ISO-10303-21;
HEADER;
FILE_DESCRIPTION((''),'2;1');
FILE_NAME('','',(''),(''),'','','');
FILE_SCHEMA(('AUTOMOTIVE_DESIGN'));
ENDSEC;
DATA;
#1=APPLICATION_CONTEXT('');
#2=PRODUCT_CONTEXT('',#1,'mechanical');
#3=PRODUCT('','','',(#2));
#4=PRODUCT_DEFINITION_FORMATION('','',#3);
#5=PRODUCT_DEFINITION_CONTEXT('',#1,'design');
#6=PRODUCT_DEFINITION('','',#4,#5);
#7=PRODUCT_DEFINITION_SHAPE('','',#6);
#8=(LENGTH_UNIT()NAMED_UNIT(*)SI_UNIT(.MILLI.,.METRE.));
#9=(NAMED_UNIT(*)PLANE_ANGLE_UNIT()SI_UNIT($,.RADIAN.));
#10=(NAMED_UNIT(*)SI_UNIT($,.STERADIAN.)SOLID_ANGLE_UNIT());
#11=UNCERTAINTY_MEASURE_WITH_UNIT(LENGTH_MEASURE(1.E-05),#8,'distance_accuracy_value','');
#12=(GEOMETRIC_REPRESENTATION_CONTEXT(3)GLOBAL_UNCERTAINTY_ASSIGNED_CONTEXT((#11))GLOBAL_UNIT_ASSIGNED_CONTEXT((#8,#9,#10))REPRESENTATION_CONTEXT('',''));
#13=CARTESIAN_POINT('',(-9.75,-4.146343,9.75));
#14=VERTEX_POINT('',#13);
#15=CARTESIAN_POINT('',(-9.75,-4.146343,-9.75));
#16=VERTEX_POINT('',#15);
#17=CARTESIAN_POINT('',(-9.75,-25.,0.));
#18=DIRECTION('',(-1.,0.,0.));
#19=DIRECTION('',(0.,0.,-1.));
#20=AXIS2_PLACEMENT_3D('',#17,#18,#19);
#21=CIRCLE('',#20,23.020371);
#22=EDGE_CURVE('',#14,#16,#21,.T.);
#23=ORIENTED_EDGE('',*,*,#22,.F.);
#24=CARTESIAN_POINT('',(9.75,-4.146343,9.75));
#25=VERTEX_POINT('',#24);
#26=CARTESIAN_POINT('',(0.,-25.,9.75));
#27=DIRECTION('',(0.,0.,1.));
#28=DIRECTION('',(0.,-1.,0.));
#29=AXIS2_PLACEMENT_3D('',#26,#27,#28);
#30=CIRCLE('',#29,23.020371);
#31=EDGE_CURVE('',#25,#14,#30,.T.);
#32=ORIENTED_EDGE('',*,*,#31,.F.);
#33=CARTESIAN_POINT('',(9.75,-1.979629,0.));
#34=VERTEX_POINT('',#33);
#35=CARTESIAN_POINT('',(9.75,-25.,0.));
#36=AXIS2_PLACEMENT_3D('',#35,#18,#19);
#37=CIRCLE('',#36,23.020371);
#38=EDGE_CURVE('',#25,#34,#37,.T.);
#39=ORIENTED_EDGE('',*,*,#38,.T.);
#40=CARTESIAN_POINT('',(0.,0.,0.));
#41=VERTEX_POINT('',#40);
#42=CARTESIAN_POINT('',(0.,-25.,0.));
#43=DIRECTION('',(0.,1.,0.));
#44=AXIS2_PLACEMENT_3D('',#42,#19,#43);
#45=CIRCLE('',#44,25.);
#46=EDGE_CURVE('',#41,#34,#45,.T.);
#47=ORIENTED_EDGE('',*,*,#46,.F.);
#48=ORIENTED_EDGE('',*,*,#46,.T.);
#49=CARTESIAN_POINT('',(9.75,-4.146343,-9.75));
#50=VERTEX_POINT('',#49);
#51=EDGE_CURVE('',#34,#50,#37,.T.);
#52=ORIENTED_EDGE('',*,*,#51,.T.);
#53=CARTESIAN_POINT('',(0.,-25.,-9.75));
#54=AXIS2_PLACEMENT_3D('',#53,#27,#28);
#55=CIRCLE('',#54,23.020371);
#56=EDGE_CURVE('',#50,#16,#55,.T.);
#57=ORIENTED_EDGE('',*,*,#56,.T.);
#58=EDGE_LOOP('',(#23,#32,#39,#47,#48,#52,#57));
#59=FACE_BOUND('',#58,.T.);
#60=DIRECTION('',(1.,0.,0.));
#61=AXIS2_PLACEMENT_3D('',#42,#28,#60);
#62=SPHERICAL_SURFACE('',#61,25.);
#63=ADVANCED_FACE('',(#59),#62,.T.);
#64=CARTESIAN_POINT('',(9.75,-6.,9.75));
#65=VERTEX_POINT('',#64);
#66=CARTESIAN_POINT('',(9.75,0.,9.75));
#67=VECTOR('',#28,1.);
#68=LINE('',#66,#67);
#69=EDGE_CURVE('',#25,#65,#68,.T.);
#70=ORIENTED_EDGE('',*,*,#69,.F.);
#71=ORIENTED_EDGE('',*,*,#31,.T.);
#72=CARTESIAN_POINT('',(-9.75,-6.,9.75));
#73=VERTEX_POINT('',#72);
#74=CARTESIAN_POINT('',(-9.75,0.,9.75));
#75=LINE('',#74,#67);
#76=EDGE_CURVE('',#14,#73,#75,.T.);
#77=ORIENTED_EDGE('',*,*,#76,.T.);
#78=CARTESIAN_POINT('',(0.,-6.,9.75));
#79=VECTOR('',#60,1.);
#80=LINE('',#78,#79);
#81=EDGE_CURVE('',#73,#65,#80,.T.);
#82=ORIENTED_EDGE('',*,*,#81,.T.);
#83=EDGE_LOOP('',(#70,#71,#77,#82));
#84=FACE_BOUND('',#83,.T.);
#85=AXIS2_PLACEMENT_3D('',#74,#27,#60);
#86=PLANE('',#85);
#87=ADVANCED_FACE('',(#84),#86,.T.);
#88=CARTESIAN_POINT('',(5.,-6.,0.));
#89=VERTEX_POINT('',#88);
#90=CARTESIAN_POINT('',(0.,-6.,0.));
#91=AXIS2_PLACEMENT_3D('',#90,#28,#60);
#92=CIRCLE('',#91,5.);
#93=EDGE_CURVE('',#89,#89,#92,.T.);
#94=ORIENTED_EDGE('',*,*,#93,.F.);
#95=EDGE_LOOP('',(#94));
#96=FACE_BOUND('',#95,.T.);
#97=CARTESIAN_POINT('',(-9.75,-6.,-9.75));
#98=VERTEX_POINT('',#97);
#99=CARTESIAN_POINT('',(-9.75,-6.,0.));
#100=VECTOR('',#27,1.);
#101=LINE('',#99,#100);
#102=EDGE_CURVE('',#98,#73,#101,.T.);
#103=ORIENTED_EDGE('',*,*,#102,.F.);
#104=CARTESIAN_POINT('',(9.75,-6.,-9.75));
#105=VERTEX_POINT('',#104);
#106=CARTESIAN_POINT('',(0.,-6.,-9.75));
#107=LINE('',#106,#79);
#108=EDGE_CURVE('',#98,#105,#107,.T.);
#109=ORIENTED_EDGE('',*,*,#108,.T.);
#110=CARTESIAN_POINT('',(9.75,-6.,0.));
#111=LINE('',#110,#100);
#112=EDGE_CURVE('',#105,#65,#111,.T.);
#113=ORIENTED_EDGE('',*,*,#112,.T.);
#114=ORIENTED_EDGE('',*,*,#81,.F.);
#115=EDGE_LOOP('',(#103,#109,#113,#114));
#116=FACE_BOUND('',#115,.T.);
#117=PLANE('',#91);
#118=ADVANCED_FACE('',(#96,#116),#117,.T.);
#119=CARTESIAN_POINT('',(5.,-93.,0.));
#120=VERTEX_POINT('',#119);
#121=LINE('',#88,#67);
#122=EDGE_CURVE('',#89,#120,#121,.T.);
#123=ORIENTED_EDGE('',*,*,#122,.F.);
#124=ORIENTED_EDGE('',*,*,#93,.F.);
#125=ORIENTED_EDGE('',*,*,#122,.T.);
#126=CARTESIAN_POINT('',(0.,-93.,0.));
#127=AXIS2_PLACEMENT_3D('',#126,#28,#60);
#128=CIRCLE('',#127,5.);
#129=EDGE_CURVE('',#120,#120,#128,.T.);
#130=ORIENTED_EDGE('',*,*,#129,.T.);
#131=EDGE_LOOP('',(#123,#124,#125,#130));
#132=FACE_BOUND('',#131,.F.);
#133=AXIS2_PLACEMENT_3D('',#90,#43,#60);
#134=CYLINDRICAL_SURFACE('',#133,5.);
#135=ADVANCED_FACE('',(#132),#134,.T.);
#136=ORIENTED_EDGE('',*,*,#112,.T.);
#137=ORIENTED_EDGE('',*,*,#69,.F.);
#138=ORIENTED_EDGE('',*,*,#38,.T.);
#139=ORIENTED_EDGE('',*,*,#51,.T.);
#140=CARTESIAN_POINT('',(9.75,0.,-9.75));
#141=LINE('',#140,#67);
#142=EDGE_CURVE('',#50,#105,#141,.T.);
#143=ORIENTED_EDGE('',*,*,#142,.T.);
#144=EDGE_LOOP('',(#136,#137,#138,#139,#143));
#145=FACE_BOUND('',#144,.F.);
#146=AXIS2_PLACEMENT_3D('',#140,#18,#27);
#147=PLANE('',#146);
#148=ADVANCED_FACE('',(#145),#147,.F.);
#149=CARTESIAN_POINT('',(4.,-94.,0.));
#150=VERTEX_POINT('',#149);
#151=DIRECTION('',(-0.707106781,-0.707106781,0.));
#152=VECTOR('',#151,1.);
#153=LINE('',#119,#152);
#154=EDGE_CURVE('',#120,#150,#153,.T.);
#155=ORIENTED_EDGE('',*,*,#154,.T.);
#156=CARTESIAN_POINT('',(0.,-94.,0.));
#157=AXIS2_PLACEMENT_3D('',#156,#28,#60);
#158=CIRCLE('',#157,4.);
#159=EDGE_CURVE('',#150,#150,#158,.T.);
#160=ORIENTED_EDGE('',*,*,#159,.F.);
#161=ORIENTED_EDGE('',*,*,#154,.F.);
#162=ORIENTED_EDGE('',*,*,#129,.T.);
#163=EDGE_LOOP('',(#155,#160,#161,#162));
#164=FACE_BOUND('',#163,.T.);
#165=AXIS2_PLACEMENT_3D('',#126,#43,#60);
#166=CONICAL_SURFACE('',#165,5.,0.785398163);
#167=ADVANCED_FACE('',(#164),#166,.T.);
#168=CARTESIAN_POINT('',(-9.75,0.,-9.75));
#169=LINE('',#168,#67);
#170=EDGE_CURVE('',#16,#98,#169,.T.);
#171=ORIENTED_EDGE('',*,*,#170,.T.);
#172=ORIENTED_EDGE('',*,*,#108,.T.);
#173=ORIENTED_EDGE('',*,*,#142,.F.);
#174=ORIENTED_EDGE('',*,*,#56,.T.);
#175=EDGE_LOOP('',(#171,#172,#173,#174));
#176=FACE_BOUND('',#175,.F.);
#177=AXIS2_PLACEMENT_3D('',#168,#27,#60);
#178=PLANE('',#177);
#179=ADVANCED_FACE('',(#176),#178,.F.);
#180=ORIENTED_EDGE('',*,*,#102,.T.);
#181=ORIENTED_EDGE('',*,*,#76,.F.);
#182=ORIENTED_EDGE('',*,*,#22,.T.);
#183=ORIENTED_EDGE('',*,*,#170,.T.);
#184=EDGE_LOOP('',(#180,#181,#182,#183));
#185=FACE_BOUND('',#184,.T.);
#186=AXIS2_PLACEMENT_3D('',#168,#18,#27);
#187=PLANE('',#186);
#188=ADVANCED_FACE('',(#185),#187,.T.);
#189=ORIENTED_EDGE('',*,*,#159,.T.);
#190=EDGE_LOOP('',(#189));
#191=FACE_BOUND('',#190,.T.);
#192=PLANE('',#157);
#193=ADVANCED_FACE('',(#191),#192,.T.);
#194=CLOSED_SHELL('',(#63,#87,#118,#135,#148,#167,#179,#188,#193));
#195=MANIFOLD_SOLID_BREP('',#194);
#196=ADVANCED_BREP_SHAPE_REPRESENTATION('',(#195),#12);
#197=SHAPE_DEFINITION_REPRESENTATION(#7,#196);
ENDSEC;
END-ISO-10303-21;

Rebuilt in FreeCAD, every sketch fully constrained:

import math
import FreeCAD as App
import Part
import Sketcher


def edges_at(feature, points):
    """Names of the edges that pass closest to the given points."""
    edges = feature.Shape.Edges
    near = lambda p: min(range(len(edges)), key=lambda i: edges[i].distToShape(Part.Vertex(*p))[0])
    return sorted({f"Edge{near(p) + 1}" for p in points})


def add_polygon(sketch, points):
    """Adds a closed chain of lines whose ends are joined by coincident constraints."""
    first, n = sketch.GeometryCount, len(points)
    for a, b in zip(points, points[1:] + points[:1]):
        sketch.addGeometry(Part.LineSegment(App.Vector(*a, 0), App.Vector(*b, 0)), False)
    for i in range(n):
        sketch.addConstraint(Sketcher.Constraint("Coincident", first + i, 2, first + (i + 1) % n, 1))

doc = App.newDocument("Part")
params = doc.addObject("Spreadsheet::Sheet", "Params")
for row, (alias, value) in enumerate([
    ("sketch1_width", "19.5 mm"),
    ("pad1_length", "6 mm"),
    ("sketch2_diameter", "10 mm"),
    ("pad2_length", "88 mm"),
    ("chamfer_size", "1 mm"),
    ("sketch3_radius", "25 mm"),
    ("groove_angle", "360 deg"),
], start=1):
    params.set(f"A{row}", alias)
    params.set(f"B{row}", "=" + value)
    params.setAlias(f"B{row}", alias)

body = doc.addObject("PartDesign::Body", "Body")

# Sketch on XZ plane
sketch1 = body.newObject("Sketcher::SketchObject", "Sketch")
sketch1.AttachmentSupport = (doc.getObject("XZ_Plane"), [""])
sketch1.MapMode = "FlatFace"
add_polygon(sketch1, [(-9.75, 9.75), (-9.75, -9.75), (9.75, -9.75), (9.75, 9.75)])  # lines 0-3
sketch1.addConstraint([
    Sketcher.Constraint("Vertical", 0),
    Sketcher.Constraint("Horizontal", 1),
    Sketcher.Constraint("Vertical", 2),
    Sketcher.Constraint("Horizontal", 3),
    Sketcher.Constraint("Symmetric", 0, 2, 2, 2, -1, 1),
    Sketcher.Constraint("Equal", 3, 0),
    Sketcher.Constraint("DistanceX", 1, 1, 1, 2, 19.5),
])
sketch1.setExpression("Constraints[10]", "Params.sketch1_width")
pad1 = body.newObject("PartDesign::Pad", "Pad")
pad1.Profile = sketch1
pad1.setExpression("Length", "Params.pad1_length")

# Sketch on XZ plane
sketch2 = body.newObject("Sketcher::SketchObject", "Sketch001")
sketch2.AttachmentSupport = (doc.getObject("XZ_Plane"), [""])
sketch2.MapMode = "FlatFace"
sketch2.AttachmentOffset = App.Placement(App.Vector(0, 0, 6), App.Rotation())
sketch2.addGeometry(Part.Circle(App.Vector(0, 0, 0), App.Vector(0, 0, 1), 5), False)
sketch2.addConstraint([
    Sketcher.Constraint("Coincident", 0, 3, -1, 1),
    Sketcher.Constraint("Diameter", 0, 10.0),
])
sketch2.setExpression("Constraints[1]", "Params.sketch2_diameter")
pad2 = body.newObject("PartDesign::Pad", "Pad001")
pad2.Profile = sketch2
pad2.setExpression("Length", "Params.pad2_length")
doc.recompute()

chamfer = body.newObject("PartDesign::Chamfer", "Chamfer")
chamfer.Base = (pad2, edges_at(pad2, [(-5, -94, 0)]))
chamfer.setExpression("Size", "Params.chamfer_size")

# Sketch on XY plane
sketch3 = body.newObject("Sketcher::SketchObject", "Sketch002")
sketch3.AttachmentSupport = (doc.getObject("XY_Plane"), [""])
sketch3.MapMode = "FlatFace"
sketch3.addGeometry([
    Part.ArcOfCircle(Part.Circle(App.Vector(0, -25, 0), App.Vector(0, 0, 1), 25), math.radians(0), math.radians(90)),
    Part.LineSegment(App.Vector(25, -25, 0), App.Vector(35.527138, -25, 0)),
    Part.ArcOfCircle(Part.Circle(App.Vector(0, -25, 0), App.Vector(0, 0, 1), 35.527138), math.radians(0), math.radians(90)),
    Part.LineSegment(App.Vector(0, 10.527138, 0), App.Vector(0, 0, 0)),
], False)
sketch3.addConstraint([
    Sketcher.Constraint("Coincident", 0, 1, 1, 1),
    Sketcher.Constraint("Coincident", 1, 2, 2, 1),
    Sketcher.Constraint("Coincident", 2, 2, 3, 1),
    Sketcher.Constraint("Coincident", 3, 2, 0, 2),
    Sketcher.Constraint("Horizontal", 1),
    Sketcher.Constraint("Vertical", 3),
    Sketcher.Constraint("Coincident", 3, 2, -1, 1),
    Sketcher.Constraint("Coincident", 2, 3, 0, 3),
    Sketcher.Constraint("PointOnObject", 0, 3, -2),
    Sketcher.Constraint("Horizontal", 2, 3, 0, 1),
    Sketcher.Constraint("Radius", 0, 25.0),
    Sketcher.Constraint("Radius", 2, 35.527138),
])
sketch3.setExpression("Constraints[10]", "Params.sketch3_radius")
groove = body.newObject("PartDesign::Groove", "Groove")
groove.Profile = sketch3
groove.ReferenceAxis = (sketch3, ["V_Axis"])
groove.setExpression("Angle", "Params.groove_angle")

doc.recompute()
